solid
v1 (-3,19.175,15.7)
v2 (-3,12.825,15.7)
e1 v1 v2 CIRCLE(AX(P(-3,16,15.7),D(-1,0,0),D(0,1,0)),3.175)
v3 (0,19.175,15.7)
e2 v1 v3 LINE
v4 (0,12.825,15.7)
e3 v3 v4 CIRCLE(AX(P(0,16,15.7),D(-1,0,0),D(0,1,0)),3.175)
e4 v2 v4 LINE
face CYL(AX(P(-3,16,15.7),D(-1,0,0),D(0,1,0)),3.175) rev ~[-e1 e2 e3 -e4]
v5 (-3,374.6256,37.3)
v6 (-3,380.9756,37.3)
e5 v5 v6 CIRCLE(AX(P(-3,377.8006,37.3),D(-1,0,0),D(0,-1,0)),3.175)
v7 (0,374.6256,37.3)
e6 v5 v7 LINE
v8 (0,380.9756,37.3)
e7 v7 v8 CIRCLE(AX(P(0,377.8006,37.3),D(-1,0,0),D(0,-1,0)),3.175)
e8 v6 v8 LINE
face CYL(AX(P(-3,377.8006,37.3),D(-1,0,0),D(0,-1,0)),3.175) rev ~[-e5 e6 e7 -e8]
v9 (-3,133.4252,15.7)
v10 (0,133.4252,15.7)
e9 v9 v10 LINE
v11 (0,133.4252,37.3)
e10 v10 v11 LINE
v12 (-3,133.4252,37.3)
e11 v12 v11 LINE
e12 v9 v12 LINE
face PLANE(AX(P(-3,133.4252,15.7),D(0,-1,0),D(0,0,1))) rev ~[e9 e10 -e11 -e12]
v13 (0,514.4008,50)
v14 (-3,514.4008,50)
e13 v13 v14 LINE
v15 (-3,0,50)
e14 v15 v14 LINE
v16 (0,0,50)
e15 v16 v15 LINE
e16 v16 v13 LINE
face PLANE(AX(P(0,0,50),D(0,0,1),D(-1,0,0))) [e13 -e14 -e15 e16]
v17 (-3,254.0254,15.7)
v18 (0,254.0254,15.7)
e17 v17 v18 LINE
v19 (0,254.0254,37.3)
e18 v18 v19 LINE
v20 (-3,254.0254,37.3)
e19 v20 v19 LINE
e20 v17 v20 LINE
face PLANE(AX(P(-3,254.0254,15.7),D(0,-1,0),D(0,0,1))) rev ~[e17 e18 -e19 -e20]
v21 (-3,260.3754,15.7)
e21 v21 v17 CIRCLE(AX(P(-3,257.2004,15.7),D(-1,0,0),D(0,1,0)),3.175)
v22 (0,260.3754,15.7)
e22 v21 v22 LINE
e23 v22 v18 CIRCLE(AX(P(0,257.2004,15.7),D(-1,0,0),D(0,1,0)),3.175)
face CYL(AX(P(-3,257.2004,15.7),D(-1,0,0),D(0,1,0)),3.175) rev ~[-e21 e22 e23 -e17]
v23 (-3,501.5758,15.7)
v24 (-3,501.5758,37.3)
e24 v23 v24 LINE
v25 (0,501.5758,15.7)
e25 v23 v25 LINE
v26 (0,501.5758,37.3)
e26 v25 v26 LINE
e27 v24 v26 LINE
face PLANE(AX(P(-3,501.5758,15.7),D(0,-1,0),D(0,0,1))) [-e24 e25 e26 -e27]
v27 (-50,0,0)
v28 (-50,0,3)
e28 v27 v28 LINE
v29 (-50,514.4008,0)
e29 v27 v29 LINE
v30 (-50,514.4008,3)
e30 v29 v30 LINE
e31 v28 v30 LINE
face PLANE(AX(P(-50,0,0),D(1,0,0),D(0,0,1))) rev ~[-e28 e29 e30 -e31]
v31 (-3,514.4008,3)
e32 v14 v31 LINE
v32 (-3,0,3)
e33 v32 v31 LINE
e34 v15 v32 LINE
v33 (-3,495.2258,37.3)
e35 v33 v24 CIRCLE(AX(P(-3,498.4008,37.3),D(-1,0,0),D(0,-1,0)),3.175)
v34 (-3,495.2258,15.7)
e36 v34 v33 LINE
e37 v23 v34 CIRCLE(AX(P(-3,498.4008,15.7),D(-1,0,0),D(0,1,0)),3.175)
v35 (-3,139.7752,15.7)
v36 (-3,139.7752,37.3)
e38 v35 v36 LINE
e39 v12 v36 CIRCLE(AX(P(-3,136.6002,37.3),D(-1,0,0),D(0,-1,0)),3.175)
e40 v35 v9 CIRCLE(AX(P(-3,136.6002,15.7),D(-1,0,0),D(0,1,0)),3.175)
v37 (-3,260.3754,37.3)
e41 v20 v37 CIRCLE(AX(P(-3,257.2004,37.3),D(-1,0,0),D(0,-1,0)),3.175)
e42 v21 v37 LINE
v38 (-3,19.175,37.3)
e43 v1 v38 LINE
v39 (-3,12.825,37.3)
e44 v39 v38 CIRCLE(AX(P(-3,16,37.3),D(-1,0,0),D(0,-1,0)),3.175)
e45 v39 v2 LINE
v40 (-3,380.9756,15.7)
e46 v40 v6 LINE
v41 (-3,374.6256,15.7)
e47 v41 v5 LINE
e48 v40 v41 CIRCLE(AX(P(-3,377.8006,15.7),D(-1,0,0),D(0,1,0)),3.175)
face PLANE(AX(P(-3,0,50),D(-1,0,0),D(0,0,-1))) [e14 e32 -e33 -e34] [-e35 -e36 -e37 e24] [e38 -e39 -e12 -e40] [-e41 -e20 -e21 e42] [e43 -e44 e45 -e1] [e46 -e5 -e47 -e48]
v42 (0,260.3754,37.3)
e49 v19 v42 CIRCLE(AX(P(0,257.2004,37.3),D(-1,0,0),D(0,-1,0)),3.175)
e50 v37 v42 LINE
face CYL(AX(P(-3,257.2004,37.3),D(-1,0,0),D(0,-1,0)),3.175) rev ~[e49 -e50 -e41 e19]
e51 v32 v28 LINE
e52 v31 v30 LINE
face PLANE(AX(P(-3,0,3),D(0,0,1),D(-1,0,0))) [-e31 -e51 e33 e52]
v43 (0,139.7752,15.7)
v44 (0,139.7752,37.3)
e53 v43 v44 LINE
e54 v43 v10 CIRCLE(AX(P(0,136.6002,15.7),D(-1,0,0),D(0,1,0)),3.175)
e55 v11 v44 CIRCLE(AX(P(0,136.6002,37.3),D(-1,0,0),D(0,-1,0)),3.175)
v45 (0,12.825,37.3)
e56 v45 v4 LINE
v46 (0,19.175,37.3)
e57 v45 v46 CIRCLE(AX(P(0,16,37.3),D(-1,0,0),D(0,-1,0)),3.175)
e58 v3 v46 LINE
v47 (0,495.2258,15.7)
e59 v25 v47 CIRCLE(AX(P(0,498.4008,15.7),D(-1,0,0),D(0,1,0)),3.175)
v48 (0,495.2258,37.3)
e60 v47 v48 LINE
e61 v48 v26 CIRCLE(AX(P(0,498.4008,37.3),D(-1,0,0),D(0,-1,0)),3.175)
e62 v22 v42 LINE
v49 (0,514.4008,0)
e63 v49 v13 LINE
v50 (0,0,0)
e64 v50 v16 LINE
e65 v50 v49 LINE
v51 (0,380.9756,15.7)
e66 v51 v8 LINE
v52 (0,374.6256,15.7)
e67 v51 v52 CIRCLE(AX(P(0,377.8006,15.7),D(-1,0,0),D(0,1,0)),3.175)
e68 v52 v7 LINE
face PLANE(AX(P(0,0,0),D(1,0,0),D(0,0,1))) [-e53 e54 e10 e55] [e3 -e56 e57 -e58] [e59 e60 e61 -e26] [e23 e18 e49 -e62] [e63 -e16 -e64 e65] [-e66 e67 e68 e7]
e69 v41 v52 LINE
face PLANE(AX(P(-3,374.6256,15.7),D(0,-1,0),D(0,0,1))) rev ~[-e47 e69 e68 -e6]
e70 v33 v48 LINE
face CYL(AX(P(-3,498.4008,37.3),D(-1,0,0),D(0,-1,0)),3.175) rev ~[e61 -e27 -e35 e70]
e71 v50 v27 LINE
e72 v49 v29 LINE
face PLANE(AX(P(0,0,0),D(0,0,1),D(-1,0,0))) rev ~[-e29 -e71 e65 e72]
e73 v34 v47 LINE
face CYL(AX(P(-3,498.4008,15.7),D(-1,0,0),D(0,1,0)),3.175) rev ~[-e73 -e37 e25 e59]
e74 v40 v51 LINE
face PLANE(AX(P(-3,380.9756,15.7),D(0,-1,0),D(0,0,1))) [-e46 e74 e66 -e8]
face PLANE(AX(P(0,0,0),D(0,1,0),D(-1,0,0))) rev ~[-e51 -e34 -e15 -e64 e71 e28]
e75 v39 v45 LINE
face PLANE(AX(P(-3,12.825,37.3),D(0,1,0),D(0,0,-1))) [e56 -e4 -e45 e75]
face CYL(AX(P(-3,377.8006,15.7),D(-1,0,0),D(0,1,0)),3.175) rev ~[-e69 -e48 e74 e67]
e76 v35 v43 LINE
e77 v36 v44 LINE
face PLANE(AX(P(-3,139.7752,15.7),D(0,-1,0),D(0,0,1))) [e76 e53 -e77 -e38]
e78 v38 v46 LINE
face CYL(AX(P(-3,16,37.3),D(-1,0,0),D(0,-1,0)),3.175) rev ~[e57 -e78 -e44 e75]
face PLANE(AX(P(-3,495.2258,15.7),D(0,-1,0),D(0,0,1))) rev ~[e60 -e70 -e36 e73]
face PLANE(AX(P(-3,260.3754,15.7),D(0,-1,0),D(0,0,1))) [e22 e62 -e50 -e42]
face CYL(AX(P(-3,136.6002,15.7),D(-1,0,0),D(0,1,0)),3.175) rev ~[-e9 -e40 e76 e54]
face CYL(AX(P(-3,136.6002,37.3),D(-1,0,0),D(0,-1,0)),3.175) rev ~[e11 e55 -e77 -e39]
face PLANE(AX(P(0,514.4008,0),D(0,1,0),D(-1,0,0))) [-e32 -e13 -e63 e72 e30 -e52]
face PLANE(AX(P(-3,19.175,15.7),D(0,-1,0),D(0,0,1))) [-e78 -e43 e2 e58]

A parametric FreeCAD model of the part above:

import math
import FreeCAD as App
import Part
import Sketcher

V = App.Vector
Q = App.Units.Quantity

doc = App.newDocument("Part")
params = doc.addObject("Spreadsheet::Sheet", "Params")
for row, (alias, value) in enumerate([
    ("pad1_length", "20.252 in"),
    ("sketch2_radius", "0.125 in"),
    ("pocket1_length", "0.1181102 in"),
], start=1):
    params.set(f"A{row}", alias)
    params.set(f"B{row}", "=" + value)
    params.setAlias(f"B{row}", alias)

body = doc.addObject("PartDesign::Body", "Body")

# Sketch on XZ plane
sketch1 = body.newObject("Sketcher::SketchObject", "Sketch")
sketch1.AttachmentSupport = (doc.getObject("XZ_Plane"), [""])
sketch1.MapMode = "FlatFace"
sketch1.addGeometry(Part.LineSegment(V(0, 50, 0), V(0, 0, 0)), False)
sketch1.addGeometry(Part.LineSegment(V(0, 0, 0), V(-50, 0, 0)), False)
sketch1.addGeometry(Part.LineSegment(V(-50, 0, 0), V(-50, 3, 0)), False)
sketch1.addGeometry(Part.LineSegment(V(-50, 3, 0), V(-3, 3, 0)), False)
sketch1.addGeometry(Part.LineSegment(V(-3, 3, 0), V(-3, 50, 0)), False)
sketch1.addGeometry(Part.LineSegment(V(-3, 50, 0), V(0, 50, 0)), False)
sketch1.addConstraint(Sketcher.Constraint("Coincident", 0, 2, 1, 1))
sketch1.addConstraint(Sketcher.Constraint("Coincident", 1, 2, 2, 1))
sketch1.addConstraint(Sketcher.Constraint("Coincident", 2, 2, 3, 1))
sketch1.addConstraint(Sketcher.Constraint("Coincident", 3, 2, 4, 1))
sketch1.addConstraint(Sketcher.Constraint("Coincident", 4, 2, 5, 1))
sketch1.addConstraint(Sketcher.Constraint("Coincident", 5, 2, 0, 1))
sketch1.addConstraint(Sketcher.Constraint("Vertical", 0))
sketch1.addConstraint(Sketcher.Constraint("Horizontal", 1))
sketch1.addConstraint(Sketcher.Constraint("Vertical", 2))
sketch1.addConstraint(Sketcher.Constraint("Horizontal", 3))
sketch1.addConstraint(Sketcher.Constraint("Vertical", 4))
sketch1.addConstraint(Sketcher.Constraint("Horizontal", 5))
sketch1.addConstraint(Sketcher.Constraint("Coincident", 0, 2, -1, 1))
sketch1.addConstraint(Sketcher.Constraint("Equal", 1, 0))
sketch1.addConstraint(Sketcher.Constraint("Equal", 5, 2))
sketch1.addConstraint(Sketcher.Constraint("DistanceX", 1, 2, 1, 1, Q("1.9685 in")))
sketch1.addConstraint(Sketcher.Constraint("DistanceX", 5, 1, 5, 2, Q("0.1181 in")))
pad1 = body.newObject("PartDesign::Pad", "Pad")
pad1.Profile = sketch1
pad1.setExpression("Length", "Params.pad1_length")
pad1.Reversed = True

# Sketch on YZ plane
sketch2 = body.newObject("Sketcher::SketchObject", "Sketch001")
sketch2.AttachmentSupport = (doc.getObject("YZ_Plane"), [""])
sketch2.MapMode = "FlatFace"
sketch2.AttachmentOffset = App.Placement(V(0, 0, -0.1181102 * 25.4), App.Rotation())
sketch2.addGeometry(Part.LineSegment(V(501.6, 37.3, 0), V(501.6, 15.7, 0)), False)
sketch2.addGeometry(Part.ArcOfCircle(Part.Circle(V(498.4, 15.7, 0), V(0, 0, 1), 3.2), math.radians(180), math.radians(360)), False)
sketch2.addGeometry(Part.LineSegment(V(495.2, 15.7, 0), V(495.2, 37.3, 0)), False)
sketch2.addGeometry(Part.ArcOfCircle(Part.Circle(V(498.4, 37.3, 0), V(0, 0, 1), 3.2), math.radians(0), math.radians(180)), False)
sketch2.addGeometry(Part.LineSegment(V(19.2, 37.3, 0), V(19.2, 15.7, 0)), False)
sketch2.addGeometry(Part.ArcOfCircle(Part.Circle(V(16, 15.7, 0), V(0, 0, 1), 3.2), math.radians(180), math.radians(360)), False)
sketch2.addGeometry(Part.LineSegment(V(12.8, 15.7, 0), V(12.8, 37.3, 0)), False)
sketch2.addGeometry(Part.ArcOfCircle(Part.Circle(V(16, 37.3, 0), V(0, 0, 1), 3.2), math.radians(0), math.radians(180)), False)
sketch2.addGeometry(Part.LineSegment(V(139.8, 37.3, 0), V(139.8, 15.7, 0)), False)
sketch2.addGeometry(Part.ArcOfCircle(Part.Circle(V(136.6, 15.7, 0), V(0, 0, 1), 3.2), math.radians(180), math.radians(360)), False)
sketch2.addGeometry(Part.LineSegment(V(133.4, 15.7, 0), V(133.4, 37.3, 0)), False)
sketch2.addGeometry(Part.ArcOfCircle(Part.Circle(V(136.6, 37.3, 0), V(0, 0, 1), 3.2), math.radians(0), math.radians(180)), False)
sketch2.addGeometry(Part.LineSegment(V(381, 37.3, 0), V(381, 15.7, 0)), False)
sketch2.addGeometry(Part.ArcOfCircle(Part.Circle(V(377.8, 15.7, 0), V(0, 0, 1), 3.2), math.radians(180), math.radians(360)), False)
sketch2.addGeometry(Part.LineSegment(V(374.6, 15.7, 0), V(374.6, 37.3, 0)), False)
sketch2.addGeometry(Part.ArcOfCircle(Part.Circle(V(377.8, 37.3, 0), V(0, 0, 1), 3.2), math.radians(0), math.radians(180)), False)
sketch2.addGeometry(Part.LineSegment(V(260.4, 37.3, 0), V(260.4, 15.7, 0)), False)
sketch2.addGeometry(Part.ArcOfCircle(Part.Circle(V(257.2, 15.7, 0), V(0, 0, 1), 3.2), math.radians(180), math.radians(360)), False)
sketch2.addGeometry(Part.LineSegment(V(254, 15.7, 0), V(254, 37.3, 0)), False)
sketch2.addGeometry(Part.ArcOfCircle(Part.Circle(V(257.2, 37.3, 0), V(0, 0, 1), 3.2), math.radians(0), math.radians(180)), False)
sketch2.addConstraint(Sketcher.Constraint("Tangent", 0, 2, 1, 2))
sketch2.addConstraint(Sketcher.Constraint("Tangent", 1, 1, 2, 1))
sketch2.addConstraint(Sketcher.Constraint("Tangent", 2, 2, 3, 2))
sketch2.addConstraint(Sketcher.Constraint("Tangent", 3, 1, 0, 1))
sketch2.addConstraint(Sketcher.Constraint("Tangent", 4, 2, 5, 2))
sketch2.addConstraint(Sketcher.Constraint("Tangent", 5, 1, 6, 1))
sketch2.addConstraint(Sketcher.Constraint("Tangent", 6, 2, 7, 2))
sketch2.addConstraint(Sketcher.Constraint("Tangent", 7, 1, 4, 1))
sketch2.addConstraint(Sketcher.Constraint("Tangent", 8, 2, 9, 2))
sketch2.addConstraint(Sketcher.Constraint("Tangent", 9, 1, 10, 1))
sketch2.addConstraint(Sketcher.Constraint("Tangent", 10, 2, 11, 2))
sketch2.addConstraint(Sketcher.Constraint("Tangent", 11, 1, 8, 1))
sketch2.addConstraint(Sketcher.Constraint("Tangent", 12, 2, 13, 2))
sketch2.addConstraint(Sketcher.Constraint("Tangent", 13, 1, 14, 1))
sketch2.addConstraint(Sketcher.Constraint("Tangent", 14, 2, 15, 2))
sketch2.addConstraint(Sketcher.Constraint("Tangent", 15, 1, 12, 1))
sketch2.addConstraint(Sketcher.Constraint("Tangent", 16, 2, 17, 2))
sketch2.addConstraint(Sketcher.Constraint("Tangent", 17, 1, 18, 1))
sketch2.addConstraint(Sketcher.Constraint("Tangent", 18, 2, 19, 2))
sketch2.addConstraint(Sketcher.Constraint("Tangent", 19, 1, 16, 1))
sketch2.addConstraint(Sketcher.Constraint("Vertical", 0))
sketch2.addConstraint(Sketcher.Constraint("Vertical", 2))
sketch2.addConstraint(Sketcher.Constraint("Vertical", 4))
sketch2.addConstraint(Sketcher.Constraint("Vertical", 6))
sketch2.addConstraint(Sketcher.Constraint("Vertical", 8))
sketch2.addConstraint(Sketcher.Constraint("Vertical", 10))
sketch2.addConstraint(Sketcher.Constraint("Vertical", 12))
sketch2.addConstraint(Sketcher.Constraint("Vertical", 14))
sketch2.addConstraint(Sketcher.Constraint("Vertical", 16))
sketch2.addConstraint(Sketcher.Constraint("Vertical", 18))
sketch2.addConstraint(Sketcher.Constraint("Equal", 3, 5))
sketch2.addConstraint(Sketcher.Constraint("Equal", 7, 9))
sketch2.addConstraint(Sketcher.Constraint("Equal", 11, 13))
sketch2.addConstraint(Sketcher.Constraint("Equal", 15, 17))
sketch2.addConstraint(Sketcher.Constraint("Horizontal", 1, 3, 5, 3))
sketch2.addConstraint(Sketcher.Constraint("Horizontal", 3, 3, 7, 3))
sketch2.addConstraint(Sketcher.Constraint("Horizontal", 5, 3, 9, 3))
sketch2.addConstraint(Sketcher.Constraint("Horizontal", 7, 3, 11, 3))
sketch2.addConstraint(Sketcher.Constraint("Horizontal", 9, 3, 13, 3))
sketch2.addConstraint(Sketcher.Constraint("Horizontal", 11, 3, 15, 3))
sketch2.addConstraint(Sketcher.Constraint("Horizontal", 13, 3, 17, 3))
sketch2.addConstraint(Sketcher.Constraint("Horizontal", 15, 3, 19, 3))
sketch2.addConstraint(Sketcher.Constraint("Radius", 1, Q("0.125 in")))
sketch2.addConstraint(Sketcher.Constraint("DistanceX", -1, 1, 5, 3, 16.0))
sketch2.addConstraint(Sketcher.Constraint("DistanceX", 5, 3, 1, 3, 482.4008))
sketch2.addConstraint(Sketcher.Constraint("DistanceX", 5, 3, 9, 3, 120.6002))
sketch2.addConstraint(Sketcher.Constraint("DistanceX", 13, 3, 1, 3, 120.6002))
sketch2.addConstraint(Sketcher.Constraint("DistanceX", 17, 3, 13, 3, 120.6002))
sketch2.addConstraint(Sketcher.Constraint("DistanceY", 0, 2, 0, 1, Q("0.8504 in")))
sketch2.addConstraint(Sketcher.Constraint("DistanceY", -1, 1, 1, 3, Q("0.6181 in")))
sketch2.setExpression("Constraints[42]", "Params.sketch2_radius")
pocket1 = body.newObject("PartDesign::Pocket", "Pocket")
pocket1.Profile = sketch2
pocket1.setExpression("Length", "Params.pocket1_length")
pocket1.Reversed = True

doc.recompute()
